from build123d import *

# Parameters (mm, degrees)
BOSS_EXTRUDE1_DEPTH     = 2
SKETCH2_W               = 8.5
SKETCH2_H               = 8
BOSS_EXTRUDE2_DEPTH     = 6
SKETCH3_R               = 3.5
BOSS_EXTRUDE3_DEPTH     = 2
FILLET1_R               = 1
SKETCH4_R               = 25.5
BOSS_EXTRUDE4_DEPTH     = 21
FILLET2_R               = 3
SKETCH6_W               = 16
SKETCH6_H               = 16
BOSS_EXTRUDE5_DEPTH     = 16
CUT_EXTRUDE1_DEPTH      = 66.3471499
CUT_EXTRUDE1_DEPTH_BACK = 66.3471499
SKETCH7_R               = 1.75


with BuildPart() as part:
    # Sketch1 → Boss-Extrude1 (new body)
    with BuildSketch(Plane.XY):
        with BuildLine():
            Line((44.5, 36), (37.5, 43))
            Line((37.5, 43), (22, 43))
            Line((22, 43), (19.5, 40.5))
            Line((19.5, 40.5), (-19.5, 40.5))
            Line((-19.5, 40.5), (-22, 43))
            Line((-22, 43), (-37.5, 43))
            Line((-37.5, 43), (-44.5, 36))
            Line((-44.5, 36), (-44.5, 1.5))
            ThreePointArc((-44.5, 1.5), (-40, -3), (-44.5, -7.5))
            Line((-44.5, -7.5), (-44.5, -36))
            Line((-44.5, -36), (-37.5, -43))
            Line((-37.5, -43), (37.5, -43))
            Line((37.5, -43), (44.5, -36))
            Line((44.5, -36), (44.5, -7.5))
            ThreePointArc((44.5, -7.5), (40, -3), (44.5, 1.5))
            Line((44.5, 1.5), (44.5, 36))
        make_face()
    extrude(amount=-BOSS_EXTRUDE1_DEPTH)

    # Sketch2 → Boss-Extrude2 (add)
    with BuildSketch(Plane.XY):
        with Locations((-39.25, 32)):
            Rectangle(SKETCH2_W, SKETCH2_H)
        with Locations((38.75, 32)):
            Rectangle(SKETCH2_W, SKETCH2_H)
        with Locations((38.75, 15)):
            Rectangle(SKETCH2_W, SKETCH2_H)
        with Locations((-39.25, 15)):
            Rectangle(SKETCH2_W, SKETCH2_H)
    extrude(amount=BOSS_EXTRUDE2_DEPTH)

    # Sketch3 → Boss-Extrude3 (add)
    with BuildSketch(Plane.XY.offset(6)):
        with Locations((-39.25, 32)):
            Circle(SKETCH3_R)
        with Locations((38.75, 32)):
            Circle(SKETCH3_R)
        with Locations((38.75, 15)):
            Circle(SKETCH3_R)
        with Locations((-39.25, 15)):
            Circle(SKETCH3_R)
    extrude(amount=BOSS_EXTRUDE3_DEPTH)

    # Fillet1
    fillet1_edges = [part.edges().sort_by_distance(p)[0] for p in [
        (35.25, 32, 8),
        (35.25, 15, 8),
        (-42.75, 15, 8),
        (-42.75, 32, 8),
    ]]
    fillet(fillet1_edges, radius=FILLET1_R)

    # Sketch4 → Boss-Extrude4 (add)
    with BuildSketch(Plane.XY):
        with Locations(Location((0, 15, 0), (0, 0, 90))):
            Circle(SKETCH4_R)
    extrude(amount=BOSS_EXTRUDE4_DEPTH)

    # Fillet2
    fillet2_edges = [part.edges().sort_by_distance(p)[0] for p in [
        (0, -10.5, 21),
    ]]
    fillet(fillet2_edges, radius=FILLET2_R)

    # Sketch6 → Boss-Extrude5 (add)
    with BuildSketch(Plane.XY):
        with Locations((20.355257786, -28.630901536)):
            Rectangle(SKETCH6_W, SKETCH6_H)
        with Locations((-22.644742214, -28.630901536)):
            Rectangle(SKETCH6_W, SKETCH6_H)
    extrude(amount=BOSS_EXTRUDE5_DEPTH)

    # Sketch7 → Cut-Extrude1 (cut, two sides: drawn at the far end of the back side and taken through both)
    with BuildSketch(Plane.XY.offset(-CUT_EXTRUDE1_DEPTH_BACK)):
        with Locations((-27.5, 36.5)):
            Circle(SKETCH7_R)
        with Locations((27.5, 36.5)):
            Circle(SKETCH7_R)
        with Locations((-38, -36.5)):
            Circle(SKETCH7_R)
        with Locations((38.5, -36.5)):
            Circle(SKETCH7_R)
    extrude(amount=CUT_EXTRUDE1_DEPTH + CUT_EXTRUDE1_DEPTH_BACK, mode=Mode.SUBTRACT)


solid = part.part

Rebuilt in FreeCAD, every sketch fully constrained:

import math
import FreeCAD as App
import Part
import Sketcher


def edges_at(feature, points):
    """Names of the edges that pass closest to the given points."""
    edges = feature.Shape.Edges
    near = lambda p: min(range(len(edges)), key=lambda i: edges[i].distToShape(Part.Vertex(*p))[0])
    return sorted({f"Edge{near(p) + 1}" for p in points})

doc = App.newDocument("Part")
body = doc.addObject("PartDesign::Body", "Body")

# Sketch on XY plane
sketch1 = body.newObject("Sketcher::SketchObject", "Sketch")
sketch1.AttachmentSupport = (doc.getObject("XY_Plane"), [""])
sketch1.MapMode = "FlatFace"
sketch1.addGeometry(Part.LineSegment(App.Vector(44.5, 36, 0), App.Vector(37.5, 43, 0)), False)
sketch1.addGeometry(Part.LineSegment(App.Vector(37.5, 43, 0), App.Vector(22, 43, 0)), False)
sketch1.addGeometry(Part.LineSegment(App.Vector(22, 43, 0), App.Vector(19.5, 40.5, 0)), False)
sketch1.addGeometry(Part.LineSegment(App.Vector(19.5, 40.5, 0), App.Vector(-19.5, 40.5, 0)), False)
sketch1.addGeometry(Part.LineSegment(App.Vector(-19.5, 40.5, 0), App.Vector(-22, 43, 0)), False)
sketch1.addGeometry(Part.LineSegment(App.Vector(-22, 43, 0), App.Vector(-37.5, 43, 0)), False)
sketch1.addGeometry(Part.LineSegment(App.Vector(-37.5, 43, 0), App.Vector(-44.5, 36, 0)), False)
sketch1.addGeometry(Part.LineSegment(App.Vector(-44.5, 36, 0), App.Vector(-44.5, 1.5, 0)), False)
sketch1.addGeometry(Part.ArcOfCircle(Part.Circle(App.Vector(-44.5, -3, 0), App.Vector(0, 0, 1), 4.5), math.radians(-90), math.radians(90)), False)
sketch1.addGeometry(Part.LineSegment(App.Vector(-44.5, -7.5, 0), App.Vector(-44.5, -36, 0)), False)
sketch1.addGeometry(Part.LineSegment(App.Vector(-44.5, -36, 0), App.Vector(-37.5, -43, 0)), False)
sketch1.addGeometry(Part.LineSegment(App.Vector(-37.5, -43, 0), App.Vector(37.5, -43, 0)), False)
sketch1.addGeometry(Part.LineSegment(App.Vector(37.5, -43, 0), App.Vector(44.5, -36, 0)), False)
sketch1.addGeometry(Part.LineSegment(App.Vector(44.5, -36, 0), App.Vector(44.5, -7.5, 0)), False)
sketch1.addGeometry(Part.ArcOfCircle(Part.Circle(App.Vector(44.5, -3, 0), App.Vector(0, 0, 1), 4.5), math.radians(90), math.radians(270)), False)
sketch1.addGeometry(Part.LineSegment(App.Vector(44.5, 1.5, 0), App.Vector(44.5, 36, 0)), False)
sketch1.addConstraint(Sketcher.Constraint("Coincident", 0, 2, 1, 1))
sketch1.addConstraint(Sketcher.Constraint("Coincident", 1, 2, 2, 1))
sketch1.addConstraint(Sketcher.Constraint("Coincident", 2, 2, 3, 1))
sketch1.addConstraint(Sketcher.Constraint("Coincident", 3, 2, 4, 1))
sketch1.addConstraint(Sketcher.Constraint("Coincident", 4, 2, 5, 1))
sketch1.addConstraint(Sketcher.Constraint("Coincident", 5, 2, 6, 1))
sketch1.addConstraint(Sketcher.Constraint("Coincident", 6, 2, 7, 1))
sketch1.addConstraint(Sketcher.Constraint("Coincident", 7, 2, 8, 2))
sketch1.addConstraint(Sketcher.Constraint("Coincident", 8, 1, 9, 1))
sketch1.addConstraint(Sketcher.Constraint("Coincident", 9, 2, 10, 1))
sketch1.addConstraint(Sketcher.Constraint("Coincident", 10, 2, 11, 1))
sketch1.addConstraint(Sketcher.Constraint("Coincident", 11, 2, 12, 1))
sketch1.addConstraint(Sketcher.Constraint("Coincident", 12, 2, 13, 1))
sketch1.addConstraint(Sketcher.Constraint("Coincident", 13, 2, 14, 2))
sketch1.addConstraint(Sketcher.Constraint("Coincident", 14, 1, 15, 1))
sketch1.addConstraint(Sketcher.Constraint("Coincident", 15, 2, 0, 1))
sketch1.addConstraint(Sketcher.Constraint("Horizontal", 1))
sketch1.addConstraint(Sketcher.Constraint("Horizontal", 3))
sketch1.addConstraint(Sketcher.Constraint("Horizontal", 5))
sketch1.addConstraint(Sketcher.Constraint("Vertical", 7))
sketch1.addConstraint(Sketcher.Constraint("Vertical", 9))
sketch1.addConstraint(Sketcher.Constraint("Horizontal", 11))
sketch1.addConstraint(Sketcher.Constraint("Vertical", 13))
sketch1.addConstraint(Sketcher.Constraint("Vertical", 15))
sketch1.addConstraint(Sketcher.Constraint("Equal", 8, 14))
sketch1.addConstraint(Sketcher.Constraint("Symmetric", 0, 2, 10, 2, -1, 1))
sketch1.addConstraint(Sketcher.Constraint("Symmetric", 5, 2, 11, 2, -1, 1))
sketch1.addConstraint(Sketcher.Constraint("Symmetric", 6, 2, 12, 2, -1, 1))
sketch1.addConstraint(Sketcher.Constraint("Symmetric", 9, 2, 15, 2, -1, 1))
sketch1.addConstraint(Sketcher.Constraint("Symmetric", 8, 3, 14, 3, -2))
sketch1.addConstraint(Sketcher.Constraint("Symmetric", 9, 2, 12, 2, -2))
sketch1.addConstraint(Sketcher.Constraint("Perpendicular", 0, 2))
sketch1.addConstraint(Sketcher.Constraint("Perpendicular", 2, 4))
sketch1.addConstraint(Sketcher.Constraint("Perpendicular", 4, 6))
sketch1.addConstraint(Sketcher.Constraint("Vertical", 8, 3, 6, 2))
sketch1.addConstraint(Sketcher.Constraint("Vertical", 5, 2, 10, 2))
sketch1.addConstraint(Sketcher.Constraint("Equal", 1, 5))
sketch1.addConstraint(Sketcher.Constraint("Radius", 8, 4.5))
sketch1.addConstraint(Sketcher.Constraint("DistanceX", 3, 2, 3, 1, 39.0))
sketch1.addConstraint(Sketcher.Constraint("DistanceX", 11, 1, 11, 2, 75.0))
sketch1.addConstraint(Sketcher.Constraint("DistanceX", 1, 2, 1, 1, 15.5))
sketch1.addConstraint(Sketcher.Constraint("DistanceY", 7, 2, 7, 1, 34.5))
sketch1.addConstraint(Sketcher.Constraint("DistanceY", 9, 2, 9, 1, 28.5))
sketch1.addConstraint(Sketcher.Constraint("DistanceY", -1, 1, 0, 2, 43.0))
pad1 = body.newObject("PartDesign::Pad", "Pad")
pad1.Profile = sketch1
pad1.Length = 2
pad1.Reversed = True

# Sketch on XY plane
sketch2 = body.newObject("Sketcher::SketchObject", "Sketch001")
sketch2.AttachmentSupport = (doc.getObject("XY_Plane"), [""])
sketch2.MapMode = "FlatFace"
sketch2.addGeometry(Part.LineSegment(App.Vector(-44, 36, 0), App.Vector(-44, 28, 0)), False)
sketch2.addGeometry(Part.LineSegment(App.Vector(-44, 28, 0), App.Vector(-35, 28, 0)), False)
sketch2.addGeometry(Part.LineSegment(App.Vector(-35, 28, 0), App.Vector(-35, 36, 0)), False)
sketch2.addGeometry(Part.LineSegment(App.Vector(-35, 36, 0), App.Vector(-44, 36, 0)), False)
sketch2.addGeometry(Part.LineSegment(App.Vector(34, 36, 0), App.Vector(34, 28, 0)), False)
sketch2.addGeometry(Part.LineSegment(App.Vector(34, 28, 0), App.Vector(43, 28, 0)), False)
sketch2.addGeometry(Part.LineSegment(App.Vector(43, 28, 0), App.Vector(43, 36, 0)), False)
sketch2.addGeometry(Part.LineSegment(App.Vector(43, 36, 0), App.Vector(34, 36, 0)), False)
sketch2.addGeometry(Part.LineSegment(App.Vector(34, 19, 0), App.Vector(34, 11, 0)), False)
sketch2.addGeometry(Part.LineSegment(App.Vector(34, 11, 0), App.Vector(43, 11, 0)), False)
sketch2.addGeometry(Part.LineSegment(App.Vector(43, 11, 0), App.Vector(43, 19, 0)), False)
sketch2.addGeometry(Part.LineSegment(App.Vector(43, 19, 0), App.Vector(34, 19, 0)), False)
sketch2.addGeometry(Part.LineSegment(App.Vector(-44, 19, 0), App.Vector(-44, 11, 0)), False)
sketch2.addGeometry(Part.LineSegment(App.Vector(-44, 11, 0), App.Vector(-35, 11, 0)), False)
sketch2.addGeometry(Part.LineSegment(App.Vector(-35, 11, 0), App.Vector(-35, 19, 0)), False)
sketch2.addGeometry(Part.LineSegment(App.Vector(-35, 19, 0), App.Vector(-44, 19, 0)), False)
sketch2.addConstraint(Sketcher.Constraint("Coincident", 0, 2, 1, 1))
sketch2.addConstraint(Sketcher.Constraint("Coincident", 1, 2, 2, 1))
sketch2.addConstraint(Sketcher.Constraint("Coincident", 2, 2, 3, 1))
sketch2.addConstraint(Sketcher.Constraint("Coincident", 3, 2, 0, 1))
sketch2.addConstraint(Sketcher.Constraint("Coincident", 4, 2, 5, 1))
sketch2.addConstraint(Sketcher.Constraint("Coincident", 5, 2, 6, 1))
sketch2.addConstraint(Sketcher.Constraint("Coincident", 6, 2, 7, 1))
sketch2.addConstraint(Sketcher.Constraint("Coincident", 7, 2, 4, 1))
sketch2.addConstraint(Sketcher.Constraint("Coincident", 8, 2, 9, 1))
sketch2.addConstraint(Sketcher.Constraint("Coincident", 9, 2, 10, 1))
sketch2.addConstraint(Sketcher.Constraint("Coincident", 10, 2, 11, 1))
sketch2.addConstraint(Sketcher.Constraint("Coincident", 11, 2, 8, 1))
sketch2.addConstraint(Sketcher.Constraint("Coincident", 12, 2, 13, 1))
sketch2.addConstraint(Sketcher.Constraint("Coincident", 13, 2, 14, 1))
sketch2.addConstraint(Sketcher.Constraint("Coincident", 14, 2, 15, 1))
sketch2.addConstraint(Sketcher.Constraint("Coincident", 15, 2, 12, 1))
sketch2.addConstraint(Sketcher.Constraint("Vertical", 0))
sketch2.addConstraint(Sketcher.Constraint("Horizontal", 1))
sketch2.addConstraint(Sketcher.Constraint("Vertical", 2))
sketch2.addConstraint(Sketcher.Constraint("Horizontal", 3))
sketch2.addConstraint(Sketcher.Constraint("Vertical", 4))
sketch2.addConstraint(Sketcher.Constraint("Horizontal", 5))
sketch2.addConstraint(Sketcher.Constraint("Vertical", 6))
sketch2.addConstraint(Sketcher.Constraint("Horizontal", 7))
sketch2.addConstraint(Sketcher.Constraint("Vertical", 8))
sketch2.addConstraint(Sketcher.Constraint("Horizontal", 9))
sketch2.addConstraint(Sketcher.Constraint("Vertical", 10))
sketch2.addConstraint(Sketcher.Constraint("Horizontal", 11))
sketch2.addConstraint(Sketcher.Constraint("Vertical", 12))
sketch2.addConstraint(Sketcher.Constraint("Horizontal", 13))
sketch2.addConstraint(Sketcher.Constraint("Vertical", 14))
sketch2.addConstraint(Sketcher.Constraint("Horizontal", 15))
sketch2.addConstraint(Sketcher.Constraint("Horizontal", 1, 2, 4, 2))
sketch2.addConstraint(Sketcher.Constraint("Horizontal", 3, 2, 6, 2))
sketch2.addConstraint(Sketcher.Constraint("Horizontal", 9, 2, 12, 2))
sketch2.addConstraint(Sketcher.Constraint("Horizontal", 11, 2, 14, 2))
sketch2.addConstraint(Sketcher.Constraint("Vertical", 7, 2, 8, 2))
sketch2.addConstraint(Sketcher.Constraint("Vertical", 6, 2, 9, 2))
sketch2.addConstraint(Sketcher.Constraint("Vertical", 3, 2, 12, 2))
sketch2.addConstraint(Sketcher.Constraint("Vertical", 2, 2, 13, 2))
sketch2.addConstraint(Sketcher.Constraint("Equal", 3, 5))
sketch2.addConstraint(Sketcher.Constraint("Equal", 6, 8))
sketch2.addConstraint(Sketcher.Constraint("DistanceY", 0, 2, 0, 1, 8.0))
sketch2.addConstraint(Sketcher.Constraint("DistanceX", 1, 1, 1, 2, 8.5))
sketch2.addConstraint(Sketcher.Constraint("DistanceY", -1, 1, 0, 2, 28.0))
sketch2.addConstraint(Sketcher.Constraint("DistanceX", 1, 2, -1, 1, 35.0))
sketch2.addConstraint(Sketcher.Constraint("DistanceX", -1, 1, 5, 2, 43.0))
sketch2.addConstraint(Sketcher.Constraint("DistanceY", -1, 1, 8, 2, 11.0))
pad2 = body.newObject("PartDesign::Pad", "Pad001")
pad2.Profile = sketch2
pad2.Length = 6

# Sketch on XY plane
sketch3 = body.newObject("Sketcher::SketchObject", "Sketch002")
sketch3.AttachmentSupport = (doc.getObject("XY_Plane"), [""])
sketch3.MapMode = "FlatFace"
sketch3.AttachmentOffset = App.Placement(App.Vector(0, 0, 6), App.Rotation())
sketch3.addGeometry(Part.Circle(App.Vector(-39.2, 32, 0), App.Vector(0, 0, 1), 3.5), False)
sketch3.addGeometry(Part.Circle(App.Vector(38.8, 32, 0), App.Vector(0, 0, 1), 3.5), False)
sketch3.addGeometry(Part.Circle(App.Vector(38.8, 15, 0), App.Vector(0, 0, 1), 3.5), False)
sketch3.addGeometry(Part.Circle(App.Vector(-39.2, 15, 0), App.Vector(0, 0, 1), 3.5), False)
sketch3.addConstraint(Sketcher.Constraint("Equal", 0, 1))
sketch3.addConstraint(Sketcher.Constraint("Equal", 1, 2))
sketch3.addConstraint(Sketcher.Constraint("Equal", 2, 3))
sketch3.addConstraint(Sketcher.Constraint("Horizontal", 0, 3, 1, 3))
sketch3.addConstraint(Sketcher.Constraint("Horizontal", 2, 3, 3, 3))
sketch3.addConstraint(Sketcher.Constraint("Vertical", 1, 3, 2, 3))
sketch3.addConstraint(Sketcher.Constraint("Vertical", 0, 3, 3, 3))
sketch3.addConstraint(Sketcher.Constraint("Diameter", 0, 7.0))
sketch3.addConstraint(Sketcher.Constraint("DistanceY", -1, 1, 0, 3, 32.0))
sketch3.addConstraint(Sketcher.Constraint("DistanceY", -1, 1, 2, 3, 15.0))
sketch3.addConstraint(Sketcher.Constraint("DistanceX", 0, 3, 1, 3, 78.0))
sketch3.addConstraint(Sketcher.Constraint("DistanceX", 0, 3, -1, 1, 39.25))
pad3 = body.newObject("PartDesign::Pad", "Pad002")
pad3.Profile = sketch3
pad3.Length = 2
doc.recompute()

fillet = body.newObject("PartDesign::Fillet", "Fillet")
fillet.Base = (pad3, edges_at(pad3, [
    (35.25, 32, 8),
    (35.25, 15, 8),
    (-42.75, 15, 8),
    (-42.75, 32, 8),
]))
fillet.Radius = 1

# Sketch on XY plane
sketch4 = body.newObject("Sketcher::SketchObject", "Sketch003")
sketch4.AttachmentSupport = (doc.getObject("XY_Plane"), [""])
sketch4.MapMode = "FlatFace"
sketch4.addGeometry(Part.Circle(App.Vector(0, 15, 0), App.Vector(0, 0, 1), 26), False)
sketch4.addConstraint(Sketcher.Constraint("PointOnObject", 0, 3, -2))
sketch4.addConstraint(Sketcher.Constraint("Diameter", 0, 51.0))
sketch4.addConstraint(Sketcher.Constraint("DistanceY", -1, 1, 0, 3, 15.0))
pad4 = body.newObject("PartDesign::Pad", "Pad003")
pad4.Profile = sketch4
pad4.Length = 21
doc.recompute()

fillet2 = body.newObject("PartDesign::Fillet", "Fillet001")
fillet2.Base = (pad4, edges_at(pad4, [(0, -10.5, 21)]))
fillet2.Radius = 3

# Sketch on XY plane
sketch5 = body.newObject("Sketcher::SketchObject", "Sketch004")
sketch5.AttachmentSupport = (doc.getObject("XY_Plane"), [""])
sketch5.MapMode = "FlatFace"
sketch5.addGeometry(Part.LineSegment(App.Vector(12, -21, 0), App.Vector(12, -37, 0)), False)
sketch5.addGeometry(Part.LineSegment(App.Vector(12, -37, 0), App.Vector(28, -37, 0)), False)
sketch5.addGeometry(Part.LineSegment(App.Vector(28, -37, 0), App.Vector(28, -21, 0)), False)
sketch5.addGeometry(Part.LineSegment(App.Vector(28, -21, 0), App.Vector(12, -21, 0)), False)
sketch5.addGeometry(Part.LineSegment(App.Vector(-31, -21, 0), App.Vector(-31, -37, 0)), False)
sketch5.addGeometry(Part.LineSegment(App.Vector(-31, -37, 0), App.Vector(-15, -37, 0)), False)
sketch5.addGeometry(Part.LineSegment(App.Vector(-15, -37, 0), App.Vector(-15, -21, 0)), False)
sketch5.addGeometry(Part.LineSegment(App.Vector(-15, -21, 0), App.Vector(-31, -21, 0)), False)
sketch5.addConstraint(Sketcher.Constraint("Coincident", 0, 2, 1, 1))
sketch5.addConstraint(Sketcher.Constraint("Coincident", 1, 2, 2, 1))
sketch5.addConstraint(Sketcher.Constraint("Coincident", 2, 2, 3, 1))
sketch5.addConstraint(Sketcher.Constraint("Coincident", 3, 2, 0, 1))
sketch5.addConstraint(Sketcher.Constraint("Coincident", 4, 2, 5, 1))
sketch5.addConstraint(Sketcher.Constraint("Coincident", 5, 2, 6, 1))
sketch5.addConstraint(Sketcher.Constraint("Coincident", 6, 2, 7, 1))
sketch5.addConstraint(Sketcher.Constraint("Coincident", 7, 2, 4, 1))
sketch5.addConstraint(Sketcher.Constraint("Vertical", 0))
sketch5.addConstraint(Sketcher.Constraint("Horizontal", 1))
sketch5.addConstraint(Sketcher.Constraint("Vertical", 2))
sketch5.addConstraint(Sketcher.Constraint("Horizontal", 3))
sketch5.addConstraint(Sketcher.Constraint("Vertical", 4))
sketch5.addConstraint(Sketcher.Constraint("Horizontal", 5))
sketch5.addConstraint(Sketcher.Constraint("Vertical", 6))
sketch5.addConstraint(Sketcher.Constraint("Horizontal", 7))
sketch5.addConstraint(Sketcher.Constraint("Horizontal", 1, 2, 4, 2))
sketch5.addConstraint(Sketcher.Constraint("Horizontal", 3, 2, 6, 2))
sketch5.addConstraint(Sketcher.Constraint("Equal", 3, 5))
sketch5.addConstraint(Sketcher.Constraint("Equal", 7, 0))
sketch5.addConstraint(Sketcher.Constraint("DistanceX", 1, 1, 1, 2, 16.0))
sketch5.addConstraint(Sketcher.Constraint("DistanceX", 4, 2, 0, 2, 43.0))
sketch5.addConstraint(Sketcher.Constraint("DistanceY", 0, 2, -1, 1, 36.630902))
sketch5.addConstraint(Sketcher.Constraint("DistanceX", -1, 1, 0, 2, 12.355258))
pad5 = body.newObject("PartDesign::Pad", "Pad004")
pad5.Profile = sketch5
pad5.Length = 16

# Sketch on XY plane
sketch6 = body.newObject("Sketcher::SketchObject", "Sketch005")
sketch6.AttachmentSupport = (doc.getObject("XY_Plane"), [""])
sketch6.MapMode = "FlatFace"
sketch6.addGeometry(Part.Circle(App.Vector(-27.5, 36.5, 0), App.Vector(0, 0, 1), 1.8), False)
sketch6.addGeometry(Part.Circle(App.Vector(27.5, 36.5, 0), App.Vector(0, 0, 1), 1.8), False)
sketch6.addGeometry(Part.Circle(App.Vector(-38, -36.5, 0), App.Vector(0, 0, 1), 1.8), False)
sketch6.addGeometry(Part.Circle(App.Vector(38.5, -36.5, 0), App.Vector(0, 0, 1), 1.8), False)
sketch6.addConstraint(Sketcher.Constraint("Equal", 0, 1))
sketch6.addConstraint(Sketcher.Constraint("Equal", 1, 2))
sketch6.addConstraint(Sketcher.Constraint("Equal", 2, 3))
sketch6.addConstraint(Sketcher.Constraint("Symmetric", 0, 3, 1, 3, -2))
sketch6.addConstraint(Sketcher.Constraint("Horizontal", 2, 3, 3, 3))
sketch6.addConstraint(Sketcher.Constraint("Diameter", 0, 3.5))
sketch6.addConstraint(Sketcher.Constraint("DistanceX", 2, 3, -1, 1, 38.0))
sketch6.addConstraint(Sketcher.Constraint("DistanceX", 0, 3, 1, 3, 55.0))
sketch6.addConstraint(Sketcher.Constraint("DistanceY", 2, 3, 0, 3, 73.0))
sketch6.addConstraint(Sketcher.Constraint("DistanceX", 1, 3, 3, 3, 11.0))
sketch6.addConstraint(Sketcher.Constraint("DistanceY", -1, 1, 0, 3, 36.5))
pocket1 = body.newObject("PartDesign::Pocket", "Pocket")
pocket1.Profile = sketch6
pocket1.Type = "ThroughAll"
pocket1.Midplane = True

doc.recompute()
